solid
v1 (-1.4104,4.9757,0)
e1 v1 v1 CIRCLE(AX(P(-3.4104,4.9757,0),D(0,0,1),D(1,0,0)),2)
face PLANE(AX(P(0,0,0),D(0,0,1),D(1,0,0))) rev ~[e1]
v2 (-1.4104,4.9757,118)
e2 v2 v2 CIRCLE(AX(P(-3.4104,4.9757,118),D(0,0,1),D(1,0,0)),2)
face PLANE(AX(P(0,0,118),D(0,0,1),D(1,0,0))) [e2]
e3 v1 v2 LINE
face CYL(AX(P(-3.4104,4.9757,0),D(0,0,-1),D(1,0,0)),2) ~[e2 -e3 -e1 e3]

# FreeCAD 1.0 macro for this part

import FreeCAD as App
import Part
import Sketcher
from FreeCAD import Vector

doc = App.newDocument("Part")
params = doc.addObject("Spreadsheet::Sheet", "Params")
for row, (alias, value) in enumerate([
    ("sketch1_diameter", "4 mm"),
    ("pad1_length", "118 mm"),
], start=1):
    params.set(f"A{row}", alias)
    params.set(f"B{row}", "=" + value)
    params.setAlias(f"B{row}", alias)

body = doc.addObject("PartDesign::Body", "Body")

sketch1 = body.newObject("Sketcher::SketchObject", "Sketch")
sketch1.AttachmentSupport = (doc.getObject("XY_Plane"), [""])
sketch1.MapMode = "FlatFace"
sketch1.addGeometry(Part.Circle(Vector(-3.4, 5, 0), Vector(0, 0, 1), 2), False)
sketch1.addConstraint([
    Sketcher.Constraint("Diameter", 0, 4.0),
    Sketcher.Constraint("DistanceX", 0, 3, -1, 1, 3.4104),
    Sketcher.Constraint("DistanceY", -1, 1, 0, 3, 4.9757),
])
sketch1.setExpression("Constraints[0]", "Params.sketch1_diameter")
pad1 = body.newObject("PartDesign::Pad", "Pad")
pad1.Profile = sketch1
pad1.setExpression("Length", "Params.pad1_length")

doc.recompute()
